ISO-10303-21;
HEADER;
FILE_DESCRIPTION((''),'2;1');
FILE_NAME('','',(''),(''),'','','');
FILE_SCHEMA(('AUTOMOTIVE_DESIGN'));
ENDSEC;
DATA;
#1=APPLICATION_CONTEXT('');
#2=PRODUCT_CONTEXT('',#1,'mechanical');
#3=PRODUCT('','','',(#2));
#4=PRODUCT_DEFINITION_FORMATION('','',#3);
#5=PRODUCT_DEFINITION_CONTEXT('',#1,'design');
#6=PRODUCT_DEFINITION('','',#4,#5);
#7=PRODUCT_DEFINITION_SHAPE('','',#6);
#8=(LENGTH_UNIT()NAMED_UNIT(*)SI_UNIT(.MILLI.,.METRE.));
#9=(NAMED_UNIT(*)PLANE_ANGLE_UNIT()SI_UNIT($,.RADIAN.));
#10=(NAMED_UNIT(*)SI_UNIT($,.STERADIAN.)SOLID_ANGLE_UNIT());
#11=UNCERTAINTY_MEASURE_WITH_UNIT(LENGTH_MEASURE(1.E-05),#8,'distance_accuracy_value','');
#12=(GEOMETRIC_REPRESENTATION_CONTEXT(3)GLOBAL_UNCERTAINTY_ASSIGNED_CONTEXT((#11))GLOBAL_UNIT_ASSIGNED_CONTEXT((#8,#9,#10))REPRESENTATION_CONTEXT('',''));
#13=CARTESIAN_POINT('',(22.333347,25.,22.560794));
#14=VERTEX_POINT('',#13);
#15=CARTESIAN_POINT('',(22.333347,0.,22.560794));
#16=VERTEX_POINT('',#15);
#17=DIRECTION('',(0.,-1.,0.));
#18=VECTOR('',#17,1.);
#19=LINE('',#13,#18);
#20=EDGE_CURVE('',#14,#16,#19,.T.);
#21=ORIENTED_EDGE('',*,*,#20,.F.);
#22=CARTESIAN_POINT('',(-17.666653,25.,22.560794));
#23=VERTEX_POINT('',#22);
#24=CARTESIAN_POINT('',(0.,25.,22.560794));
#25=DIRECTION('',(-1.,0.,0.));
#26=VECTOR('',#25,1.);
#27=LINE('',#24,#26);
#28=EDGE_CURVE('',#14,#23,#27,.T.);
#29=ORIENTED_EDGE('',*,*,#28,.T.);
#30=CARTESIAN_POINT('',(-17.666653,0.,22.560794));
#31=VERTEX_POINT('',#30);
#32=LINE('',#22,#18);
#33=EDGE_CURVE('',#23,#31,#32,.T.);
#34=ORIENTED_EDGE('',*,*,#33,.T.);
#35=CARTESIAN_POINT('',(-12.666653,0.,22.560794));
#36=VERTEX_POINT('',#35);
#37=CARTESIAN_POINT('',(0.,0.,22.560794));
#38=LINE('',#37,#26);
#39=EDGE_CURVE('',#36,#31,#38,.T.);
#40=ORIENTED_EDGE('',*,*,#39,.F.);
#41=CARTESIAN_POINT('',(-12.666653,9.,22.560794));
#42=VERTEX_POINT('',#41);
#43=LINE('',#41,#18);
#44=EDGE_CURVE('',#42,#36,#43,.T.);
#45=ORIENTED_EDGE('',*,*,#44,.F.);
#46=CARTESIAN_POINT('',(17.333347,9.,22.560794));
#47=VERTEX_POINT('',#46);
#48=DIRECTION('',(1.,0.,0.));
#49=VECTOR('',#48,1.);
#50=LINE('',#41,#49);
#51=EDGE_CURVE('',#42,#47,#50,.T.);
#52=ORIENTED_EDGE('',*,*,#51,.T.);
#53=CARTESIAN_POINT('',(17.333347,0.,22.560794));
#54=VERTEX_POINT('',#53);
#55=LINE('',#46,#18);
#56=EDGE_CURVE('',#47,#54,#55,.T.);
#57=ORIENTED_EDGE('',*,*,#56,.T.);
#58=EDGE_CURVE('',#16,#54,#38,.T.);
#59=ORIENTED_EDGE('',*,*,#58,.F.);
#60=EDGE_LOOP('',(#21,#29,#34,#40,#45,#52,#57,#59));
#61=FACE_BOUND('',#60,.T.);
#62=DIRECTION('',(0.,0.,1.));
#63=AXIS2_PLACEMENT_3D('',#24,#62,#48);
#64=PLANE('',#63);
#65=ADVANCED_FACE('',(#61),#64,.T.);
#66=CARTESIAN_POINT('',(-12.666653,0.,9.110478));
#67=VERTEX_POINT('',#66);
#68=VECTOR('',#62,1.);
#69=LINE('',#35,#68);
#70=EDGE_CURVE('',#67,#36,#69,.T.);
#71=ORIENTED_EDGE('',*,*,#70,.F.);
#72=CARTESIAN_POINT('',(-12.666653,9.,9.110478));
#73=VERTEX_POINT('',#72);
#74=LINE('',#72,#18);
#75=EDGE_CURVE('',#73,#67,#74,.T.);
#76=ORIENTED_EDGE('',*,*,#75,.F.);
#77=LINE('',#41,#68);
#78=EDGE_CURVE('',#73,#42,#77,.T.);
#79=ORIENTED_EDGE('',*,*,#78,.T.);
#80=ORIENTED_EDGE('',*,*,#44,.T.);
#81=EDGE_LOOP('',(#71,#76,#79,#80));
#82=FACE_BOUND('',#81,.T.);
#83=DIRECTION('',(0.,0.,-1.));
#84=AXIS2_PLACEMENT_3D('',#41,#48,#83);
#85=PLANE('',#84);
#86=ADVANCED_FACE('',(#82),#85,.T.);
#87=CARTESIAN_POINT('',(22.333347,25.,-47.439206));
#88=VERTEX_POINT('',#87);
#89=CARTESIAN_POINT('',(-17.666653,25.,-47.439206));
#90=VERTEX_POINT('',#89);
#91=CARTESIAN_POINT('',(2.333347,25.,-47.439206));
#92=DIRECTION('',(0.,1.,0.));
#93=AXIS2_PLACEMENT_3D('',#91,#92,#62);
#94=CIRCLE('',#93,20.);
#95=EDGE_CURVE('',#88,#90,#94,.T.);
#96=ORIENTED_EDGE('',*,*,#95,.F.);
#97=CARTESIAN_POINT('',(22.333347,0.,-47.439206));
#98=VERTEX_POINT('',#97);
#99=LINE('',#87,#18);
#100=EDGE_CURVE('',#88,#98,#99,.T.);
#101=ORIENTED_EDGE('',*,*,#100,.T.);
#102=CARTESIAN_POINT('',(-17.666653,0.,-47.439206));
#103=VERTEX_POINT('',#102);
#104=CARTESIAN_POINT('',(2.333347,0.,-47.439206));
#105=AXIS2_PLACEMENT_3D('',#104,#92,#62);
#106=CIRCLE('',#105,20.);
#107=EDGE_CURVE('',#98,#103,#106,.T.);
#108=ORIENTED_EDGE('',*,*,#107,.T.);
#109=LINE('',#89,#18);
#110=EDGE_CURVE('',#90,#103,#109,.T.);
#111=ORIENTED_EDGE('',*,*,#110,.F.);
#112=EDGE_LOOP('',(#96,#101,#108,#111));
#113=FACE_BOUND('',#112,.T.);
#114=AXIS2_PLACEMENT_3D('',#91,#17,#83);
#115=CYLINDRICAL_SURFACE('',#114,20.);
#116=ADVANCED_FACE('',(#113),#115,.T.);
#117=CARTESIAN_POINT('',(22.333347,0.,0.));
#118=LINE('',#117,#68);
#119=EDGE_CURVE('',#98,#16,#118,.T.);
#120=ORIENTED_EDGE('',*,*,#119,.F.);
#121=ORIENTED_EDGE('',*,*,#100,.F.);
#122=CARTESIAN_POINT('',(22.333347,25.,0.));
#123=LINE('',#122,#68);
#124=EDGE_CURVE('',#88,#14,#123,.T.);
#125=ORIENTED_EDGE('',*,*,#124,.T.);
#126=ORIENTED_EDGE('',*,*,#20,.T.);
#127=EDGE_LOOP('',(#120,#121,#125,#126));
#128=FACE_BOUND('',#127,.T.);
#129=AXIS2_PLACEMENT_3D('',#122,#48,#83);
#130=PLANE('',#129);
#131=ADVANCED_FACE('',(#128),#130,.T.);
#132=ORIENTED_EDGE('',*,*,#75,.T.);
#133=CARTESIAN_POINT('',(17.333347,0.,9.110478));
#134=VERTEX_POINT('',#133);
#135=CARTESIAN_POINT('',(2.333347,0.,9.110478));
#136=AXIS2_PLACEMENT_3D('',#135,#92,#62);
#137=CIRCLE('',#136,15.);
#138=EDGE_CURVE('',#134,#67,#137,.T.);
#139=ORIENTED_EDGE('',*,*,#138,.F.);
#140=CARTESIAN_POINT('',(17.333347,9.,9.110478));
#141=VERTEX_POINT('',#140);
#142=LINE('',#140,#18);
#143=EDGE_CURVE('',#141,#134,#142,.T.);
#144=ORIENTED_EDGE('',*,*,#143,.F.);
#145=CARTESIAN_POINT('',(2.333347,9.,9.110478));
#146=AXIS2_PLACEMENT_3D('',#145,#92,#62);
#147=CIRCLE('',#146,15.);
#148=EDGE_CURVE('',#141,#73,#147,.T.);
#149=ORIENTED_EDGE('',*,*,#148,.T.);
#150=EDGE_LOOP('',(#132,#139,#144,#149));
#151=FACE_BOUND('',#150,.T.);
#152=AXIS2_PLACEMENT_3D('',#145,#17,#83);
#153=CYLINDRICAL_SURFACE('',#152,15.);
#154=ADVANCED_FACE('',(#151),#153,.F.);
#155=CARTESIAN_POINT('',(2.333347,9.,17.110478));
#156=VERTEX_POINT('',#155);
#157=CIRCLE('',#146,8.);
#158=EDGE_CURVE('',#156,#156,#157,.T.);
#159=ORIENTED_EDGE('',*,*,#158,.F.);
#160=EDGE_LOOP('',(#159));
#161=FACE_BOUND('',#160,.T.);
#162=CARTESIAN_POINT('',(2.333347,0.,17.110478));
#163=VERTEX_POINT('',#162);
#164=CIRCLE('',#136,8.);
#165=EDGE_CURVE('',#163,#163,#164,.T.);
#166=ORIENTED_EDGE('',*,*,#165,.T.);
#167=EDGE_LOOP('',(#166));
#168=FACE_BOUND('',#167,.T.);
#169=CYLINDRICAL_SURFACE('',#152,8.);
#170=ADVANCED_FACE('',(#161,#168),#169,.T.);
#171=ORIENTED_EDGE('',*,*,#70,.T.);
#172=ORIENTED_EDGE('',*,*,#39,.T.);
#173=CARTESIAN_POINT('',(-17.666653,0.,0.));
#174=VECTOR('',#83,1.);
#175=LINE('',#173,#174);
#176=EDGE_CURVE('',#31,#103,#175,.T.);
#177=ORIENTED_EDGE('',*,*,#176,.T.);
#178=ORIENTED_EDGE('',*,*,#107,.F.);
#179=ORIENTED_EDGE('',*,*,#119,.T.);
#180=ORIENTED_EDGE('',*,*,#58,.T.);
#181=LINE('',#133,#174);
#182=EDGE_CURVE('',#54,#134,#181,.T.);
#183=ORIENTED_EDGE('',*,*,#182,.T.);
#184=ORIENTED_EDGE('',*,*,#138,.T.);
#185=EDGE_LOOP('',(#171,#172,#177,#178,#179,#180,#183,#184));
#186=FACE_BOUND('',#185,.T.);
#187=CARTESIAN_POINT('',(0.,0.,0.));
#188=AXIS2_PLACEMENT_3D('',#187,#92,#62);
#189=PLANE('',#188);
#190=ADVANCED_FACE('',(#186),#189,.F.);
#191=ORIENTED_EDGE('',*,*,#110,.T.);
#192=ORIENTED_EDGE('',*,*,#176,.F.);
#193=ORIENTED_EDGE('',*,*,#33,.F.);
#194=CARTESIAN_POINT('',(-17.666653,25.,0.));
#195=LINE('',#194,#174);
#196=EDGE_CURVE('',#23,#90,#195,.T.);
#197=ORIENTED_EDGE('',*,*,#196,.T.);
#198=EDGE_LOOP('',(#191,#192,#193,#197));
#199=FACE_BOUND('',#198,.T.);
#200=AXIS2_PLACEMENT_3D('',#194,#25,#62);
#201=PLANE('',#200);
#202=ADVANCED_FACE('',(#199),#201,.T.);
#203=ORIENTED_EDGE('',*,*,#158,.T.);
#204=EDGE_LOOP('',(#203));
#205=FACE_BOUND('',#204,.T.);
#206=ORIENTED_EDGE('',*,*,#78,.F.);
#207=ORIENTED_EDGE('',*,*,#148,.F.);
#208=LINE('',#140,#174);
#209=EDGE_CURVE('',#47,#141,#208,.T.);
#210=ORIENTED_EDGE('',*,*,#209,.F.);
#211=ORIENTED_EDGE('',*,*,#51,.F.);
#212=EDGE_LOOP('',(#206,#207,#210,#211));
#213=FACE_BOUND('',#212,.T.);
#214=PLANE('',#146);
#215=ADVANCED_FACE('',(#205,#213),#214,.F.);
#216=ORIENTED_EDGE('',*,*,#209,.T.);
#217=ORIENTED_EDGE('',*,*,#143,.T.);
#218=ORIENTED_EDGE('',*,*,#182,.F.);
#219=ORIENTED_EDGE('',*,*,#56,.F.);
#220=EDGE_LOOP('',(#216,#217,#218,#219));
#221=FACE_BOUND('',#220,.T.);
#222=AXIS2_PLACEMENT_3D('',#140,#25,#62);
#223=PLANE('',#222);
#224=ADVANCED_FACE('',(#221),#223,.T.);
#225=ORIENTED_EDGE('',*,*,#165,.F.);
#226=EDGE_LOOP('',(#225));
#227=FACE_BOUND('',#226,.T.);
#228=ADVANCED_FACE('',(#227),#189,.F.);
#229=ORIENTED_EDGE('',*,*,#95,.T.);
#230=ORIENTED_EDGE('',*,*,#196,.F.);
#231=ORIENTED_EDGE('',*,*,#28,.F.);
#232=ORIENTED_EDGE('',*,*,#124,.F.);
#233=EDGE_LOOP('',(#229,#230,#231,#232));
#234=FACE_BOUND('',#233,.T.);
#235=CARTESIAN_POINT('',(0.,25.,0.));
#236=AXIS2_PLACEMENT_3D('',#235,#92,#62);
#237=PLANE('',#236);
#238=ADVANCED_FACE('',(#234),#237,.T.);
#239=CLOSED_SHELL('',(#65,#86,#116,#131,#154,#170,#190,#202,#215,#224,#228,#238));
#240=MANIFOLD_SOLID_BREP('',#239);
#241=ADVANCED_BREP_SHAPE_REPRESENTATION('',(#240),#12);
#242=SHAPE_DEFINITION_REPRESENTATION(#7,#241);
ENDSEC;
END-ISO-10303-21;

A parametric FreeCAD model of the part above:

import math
import FreeCAD as App
import Part
import Sketcher
Q = App.Units.Quantity

doc = App.newDocument("Part")
body = doc.addObject("PartDesign::Body", "Body")

sketch1 = body.newObject("Sketcher::SketchObject", "Sketch")
sketch1.AttachmentSupport = (doc.getObject("XZ_Plane"), [""])
sketch1.MapMode = "FlatFace"
sketch1.addGeometry([
    Part.LineSegment(App.Vector(-18, -47, 0), App.Vector(-18, 23, 0)),
    Part.LineSegment(App.Vector(-18, 23, 0), App.Vector(22, 23, 0)),
    Part.LineSegment(App.Vector(22, 23, 0), App.Vector(22, -47, 0)),
    Part.ArcOfCircle(Part.Circle(App.Vector(2, -47, 0), App.Vector(0, 0, 1), 20), math.radians(-90), math.radians(0)),
    Part.ArcOfCircle(Part.Circle(App.Vector(2, -47, 0), App.Vector(0, 0, 1), 20), math.radians(-180), math.radians(-90)),
], False)
sketch1.addConstraint([
    Sketcher.Constraint("Coincident", 0, 2, 1, 1),
    Sketcher.Constraint("Coincident", 1, 2, 2, 1),
    Sketcher.Constraint("Tangent", 2, 2, 3, 2),
    Sketcher.Constraint("Tangent", 3, 1, 4, 2),
    Sketcher.Constraint("Tangent", 4, 1, 0, 1),
    Sketcher.Constraint("Vertical", 0),
    Sketcher.Constraint("Horizontal", 1),
    Sketcher.Constraint("Vertical", 2),
    Sketcher.Constraint("Equal", 3, 4),
    Sketcher.Constraint("Vertical", 4, 3, 3, 1),
    Sketcher.Constraint("Radius", 3, Q("20 mm")),
    Sketcher.Constraint("DistanceY", 0, 1, 0, 2, Q("70 mm")),
    Sketcher.Constraint("DistanceX", -1, 1, 3, 3, Q("2.333347 mm")),
    Sketcher.Constraint("DistanceY", 3, 3, -1, 1, Q("47.439206 mm")),
])
pad1 = body.newObject("PartDesign::Pad", "Pad")
pad1.Profile = sketch1
pad1.Length = 25
pad1.Reversed = True

sketch2 = body.newObject("Sketcher::SketchObject", "Sketch001")
sketch2.AttachmentSupport = (doc.getObject("XZ_Plane"), [""])
sketch2.MapMode = "FlatFace"
sketch2.addGeometry([
    Part.LineSegment(App.Vector(-13, 9, 0), App.Vector(-13, 23, 0)),
    Part.LineSegment(App.Vector(-13, 23, 0), App.Vector(17, 23, 0)),
    Part.LineSegment(App.Vector(17, 23, 0), App.Vector(17, 9, 0)),
    Part.ArcOfCircle(Part.Circle(App.Vector(2, 9, 0), App.Vector(0, 0, 1), 15), math.radians(180), math.radians(360)),
    Part.Circle(App.Vector(2, 9, 0), App.Vector(0, 0, 1), 8),
], False)
sketch2.addConstraint([
    Sketcher.Constraint("Coincident", 0, 2, 1, 1),
    Sketcher.Constraint("Coincident", 1, 2, 2, 1),
    Sketcher.Constraint("Tangent", 2, 2, 3, 2),
    Sketcher.Constraint("Tangent", 3, 1, 0, 1),
    Sketcher.Constraint("Vertical", 0),
    Sketcher.Constraint("Horizontal", 1),
    Sketcher.Constraint("Vertical", 2),
    Sketcher.Constraint("Coincident", 4, 3, 3, 3),
    Sketcher.Constraint("Diameter", 4, Q("16 mm")),
    Sketcher.Constraint("Radius", 3, Q("15 mm")),
    Sketcher.Constraint("DistanceY", 0, 1, 0, 2, Q("13.450315 mm")),
    Sketcher.Constraint("DistanceY", -1, 1, 3, 3, Q("9.110478 mm")),
    Sketcher.Constraint("DistanceX", -1, 1, 3, 3, Q("2.333347 mm")),
])
pocket1 = body.newObject("PartDesign::Pocket", "Pocket")
pocket1.Profile = sketch2
pocket1.Length = 9

doc.recompute()
